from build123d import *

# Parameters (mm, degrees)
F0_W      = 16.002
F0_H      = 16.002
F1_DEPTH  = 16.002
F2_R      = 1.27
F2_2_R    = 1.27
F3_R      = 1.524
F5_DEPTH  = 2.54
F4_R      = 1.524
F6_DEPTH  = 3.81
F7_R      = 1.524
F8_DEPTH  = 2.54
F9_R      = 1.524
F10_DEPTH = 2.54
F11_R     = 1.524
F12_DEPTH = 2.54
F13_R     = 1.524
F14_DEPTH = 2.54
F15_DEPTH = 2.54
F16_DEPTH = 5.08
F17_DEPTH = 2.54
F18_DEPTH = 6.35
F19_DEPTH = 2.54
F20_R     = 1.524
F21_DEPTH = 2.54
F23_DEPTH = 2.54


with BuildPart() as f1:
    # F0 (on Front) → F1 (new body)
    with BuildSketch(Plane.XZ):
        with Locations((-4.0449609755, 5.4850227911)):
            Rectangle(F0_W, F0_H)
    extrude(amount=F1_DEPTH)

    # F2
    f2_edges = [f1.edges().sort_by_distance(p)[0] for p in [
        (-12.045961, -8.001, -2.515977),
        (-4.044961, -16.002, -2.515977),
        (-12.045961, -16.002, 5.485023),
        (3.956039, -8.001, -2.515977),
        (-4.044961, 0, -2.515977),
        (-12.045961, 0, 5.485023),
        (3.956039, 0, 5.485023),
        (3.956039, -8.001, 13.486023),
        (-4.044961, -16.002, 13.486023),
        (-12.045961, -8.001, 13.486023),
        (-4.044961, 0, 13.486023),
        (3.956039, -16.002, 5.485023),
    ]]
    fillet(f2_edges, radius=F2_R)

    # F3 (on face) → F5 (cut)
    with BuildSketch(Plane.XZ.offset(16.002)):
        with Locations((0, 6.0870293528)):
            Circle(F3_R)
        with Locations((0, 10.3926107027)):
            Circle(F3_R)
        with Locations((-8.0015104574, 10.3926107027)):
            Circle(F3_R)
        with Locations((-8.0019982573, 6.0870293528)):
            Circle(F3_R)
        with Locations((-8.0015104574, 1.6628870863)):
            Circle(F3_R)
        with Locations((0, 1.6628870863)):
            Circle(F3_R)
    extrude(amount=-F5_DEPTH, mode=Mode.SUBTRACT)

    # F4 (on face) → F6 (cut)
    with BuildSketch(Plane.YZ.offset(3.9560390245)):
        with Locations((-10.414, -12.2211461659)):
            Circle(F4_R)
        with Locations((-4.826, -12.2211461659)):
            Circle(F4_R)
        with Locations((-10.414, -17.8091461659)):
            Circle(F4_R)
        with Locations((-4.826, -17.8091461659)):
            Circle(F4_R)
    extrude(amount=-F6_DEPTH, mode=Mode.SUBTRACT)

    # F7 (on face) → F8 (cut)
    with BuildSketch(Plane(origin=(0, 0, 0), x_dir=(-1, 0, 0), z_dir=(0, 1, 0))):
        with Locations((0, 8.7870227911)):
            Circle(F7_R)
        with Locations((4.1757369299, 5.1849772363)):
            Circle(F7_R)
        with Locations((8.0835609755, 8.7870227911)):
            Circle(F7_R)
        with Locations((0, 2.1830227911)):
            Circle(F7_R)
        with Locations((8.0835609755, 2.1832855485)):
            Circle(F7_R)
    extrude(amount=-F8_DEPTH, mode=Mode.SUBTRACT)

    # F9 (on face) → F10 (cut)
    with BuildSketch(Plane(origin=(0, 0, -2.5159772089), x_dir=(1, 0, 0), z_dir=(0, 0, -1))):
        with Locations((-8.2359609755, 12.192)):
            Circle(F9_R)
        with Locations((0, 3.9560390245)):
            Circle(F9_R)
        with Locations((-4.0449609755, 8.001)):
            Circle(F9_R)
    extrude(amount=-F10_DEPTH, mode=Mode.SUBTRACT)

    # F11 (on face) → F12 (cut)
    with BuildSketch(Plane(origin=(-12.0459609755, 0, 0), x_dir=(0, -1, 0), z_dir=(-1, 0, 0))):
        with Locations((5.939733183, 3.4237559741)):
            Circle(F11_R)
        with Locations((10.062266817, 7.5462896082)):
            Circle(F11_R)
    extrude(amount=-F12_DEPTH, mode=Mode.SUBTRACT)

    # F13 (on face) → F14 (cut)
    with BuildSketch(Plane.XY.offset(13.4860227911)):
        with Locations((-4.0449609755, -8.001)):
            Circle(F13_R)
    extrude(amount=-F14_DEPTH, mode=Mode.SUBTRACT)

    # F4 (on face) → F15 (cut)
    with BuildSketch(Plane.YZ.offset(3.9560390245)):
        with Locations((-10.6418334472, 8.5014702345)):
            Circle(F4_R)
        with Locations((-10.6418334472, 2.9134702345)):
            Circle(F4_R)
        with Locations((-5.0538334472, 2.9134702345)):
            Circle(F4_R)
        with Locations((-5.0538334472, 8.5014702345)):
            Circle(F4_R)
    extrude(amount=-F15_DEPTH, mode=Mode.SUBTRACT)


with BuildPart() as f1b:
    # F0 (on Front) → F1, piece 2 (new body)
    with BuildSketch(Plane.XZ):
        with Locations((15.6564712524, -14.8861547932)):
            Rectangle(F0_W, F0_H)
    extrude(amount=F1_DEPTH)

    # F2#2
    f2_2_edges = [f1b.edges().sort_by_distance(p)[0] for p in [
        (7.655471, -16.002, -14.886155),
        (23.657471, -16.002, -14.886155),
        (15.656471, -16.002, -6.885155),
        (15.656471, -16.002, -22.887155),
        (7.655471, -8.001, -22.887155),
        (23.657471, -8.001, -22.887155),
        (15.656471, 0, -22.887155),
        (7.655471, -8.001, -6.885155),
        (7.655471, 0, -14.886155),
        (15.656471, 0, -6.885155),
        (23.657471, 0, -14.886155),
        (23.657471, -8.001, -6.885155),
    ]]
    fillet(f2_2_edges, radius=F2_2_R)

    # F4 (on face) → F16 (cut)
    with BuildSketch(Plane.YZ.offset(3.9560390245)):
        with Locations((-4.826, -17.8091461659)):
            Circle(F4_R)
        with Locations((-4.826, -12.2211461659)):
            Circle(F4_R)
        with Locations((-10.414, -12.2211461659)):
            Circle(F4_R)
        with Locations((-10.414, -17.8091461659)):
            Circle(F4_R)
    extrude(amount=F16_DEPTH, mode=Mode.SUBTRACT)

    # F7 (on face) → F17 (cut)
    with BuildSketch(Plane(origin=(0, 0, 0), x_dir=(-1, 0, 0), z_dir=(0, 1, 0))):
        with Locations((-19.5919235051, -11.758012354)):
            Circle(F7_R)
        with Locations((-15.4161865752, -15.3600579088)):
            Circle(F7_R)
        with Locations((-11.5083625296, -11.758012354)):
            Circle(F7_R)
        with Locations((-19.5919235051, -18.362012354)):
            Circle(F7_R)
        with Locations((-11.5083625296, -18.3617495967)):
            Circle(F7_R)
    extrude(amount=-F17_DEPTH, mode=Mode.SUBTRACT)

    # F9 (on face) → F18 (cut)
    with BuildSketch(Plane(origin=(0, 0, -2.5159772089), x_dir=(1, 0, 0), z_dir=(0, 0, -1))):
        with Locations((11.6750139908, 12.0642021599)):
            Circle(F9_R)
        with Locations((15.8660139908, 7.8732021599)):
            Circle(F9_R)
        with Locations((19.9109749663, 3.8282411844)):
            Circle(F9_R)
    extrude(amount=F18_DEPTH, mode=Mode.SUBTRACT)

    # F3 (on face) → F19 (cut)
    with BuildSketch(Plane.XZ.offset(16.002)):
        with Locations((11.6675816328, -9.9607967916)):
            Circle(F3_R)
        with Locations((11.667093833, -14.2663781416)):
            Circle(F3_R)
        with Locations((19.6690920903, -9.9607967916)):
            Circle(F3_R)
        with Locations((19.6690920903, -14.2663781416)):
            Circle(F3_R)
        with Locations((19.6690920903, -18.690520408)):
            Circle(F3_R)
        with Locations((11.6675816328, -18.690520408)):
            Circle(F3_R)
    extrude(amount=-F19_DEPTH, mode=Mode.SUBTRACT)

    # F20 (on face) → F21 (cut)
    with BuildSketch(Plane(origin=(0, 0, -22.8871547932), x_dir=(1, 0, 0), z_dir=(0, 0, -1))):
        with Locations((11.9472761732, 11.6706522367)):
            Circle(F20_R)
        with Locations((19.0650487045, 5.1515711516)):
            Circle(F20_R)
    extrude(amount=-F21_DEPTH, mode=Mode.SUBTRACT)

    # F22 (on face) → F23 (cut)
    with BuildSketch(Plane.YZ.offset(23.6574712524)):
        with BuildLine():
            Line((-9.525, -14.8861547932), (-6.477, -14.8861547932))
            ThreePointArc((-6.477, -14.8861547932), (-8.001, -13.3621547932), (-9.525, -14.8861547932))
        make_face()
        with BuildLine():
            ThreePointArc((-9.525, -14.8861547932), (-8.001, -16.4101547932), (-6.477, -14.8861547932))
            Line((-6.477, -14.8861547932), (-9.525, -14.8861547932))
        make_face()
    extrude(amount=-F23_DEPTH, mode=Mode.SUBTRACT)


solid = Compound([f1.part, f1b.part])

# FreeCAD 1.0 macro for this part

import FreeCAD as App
import Part
import Sketcher
from FreeCAD import Vector
Q = App.Units.Quantity

doc = App.newDocument("Part")
params = doc.addObject("Spreadsheet::Sheet", "Params")
for row, (alias, value) in enumerate([
    ("sketch1_width", "0.63 in"),
    ("pad1_length", "0.63 in"),
    ("fillet_radius", "0.05 in"),
    ("sketch2_diameter", "0.12 in"),
    ("pocket1_length", "0.1 in"),
    ("sketch3_diameter", "0.12 in"),
    ("pocket2_length", "0.15 in"),
    ("sketch4_diameter", "0.12 in"),
    ("pocket3_length", "0.1 in"),
    ("sketch5_diameter", "0.12 in"),
    ("pocket4_length", "0.1 in"),
    ("sketch6_diameter", "0.12 in"),
    ("pocket5_length", "0.1 in"),
    ("sketch7_diameter", "0.12 in"),
    ("pocket6_length", "0.1 in"),
    ("sketch8_diameter", "0.12 in"),
    ("pocket7_length", "0.1 in"),
    ("sketch9_width", "0.63 in"),
    ("pad2_length", "0.63 in"),
    ("fillet2_radius", "0.05 in"),
    ("sketch10_diameter", "0.12 in"),
    ("pocket8_length", "0.2 in"),
    ("sketch11_diameter", "0.12 in"),
    ("pocket9_length", "0.1 in"),
    ("sketch12_diameter", "0.12 in"),
    ("pocket10_length", "0.25 in"),
    ("sketch13_diameter", "0.12 in"),
    ("pocket11_length", "0.1 in"),
    ("sketch14_diameter", "0.12 in"),
    ("pocket12_length", "0.1 in"),
    ("sketch15_diameter", "0.12 in"),
    ("pocket13_length", "0.1 in"),
], start=1):
    params.set(f"A{row}", alias)
    params.set(f"B{row}", "=" + value)
    params.setAlias(f"B{row}", alias)

body = doc.addObject("PartDesign::Body", "Body")

# Sketch on XZ plane
sketch1 = doc.addObject("Sketcher::SketchObject", "Sketch")
body.addObject(sketch1)
sketch1.AttachmentSupport = (doc.XZ_Plane, [""])
sketch1.MapMode = "FlatFace"
sketch1.addGeometry(Part.LineSegment(Vector(-12, 13, 0), Vector(-12, -3, 0)), False)
sketch1.addGeometry(Part.LineSegment(Vector(-12, -3, 0), Vector(4, -3, 0)), False)
sketch1.addGeometry(Part.LineSegment(Vector(4, -3, 0), Vector(4, 13, 0)), False)
sketch1.addGeometry(Part.LineSegment(Vector(4, 13, 0), Vector(-12, 13, 0)), False)
sketch1.addConstraint(Sketcher.Constraint("Coincident", 0, 2, 1, 1))
sketch1.addConstraint(Sketcher.Constraint("Coincident", 1, 2, 2, 1))
sketch1.addConstraint(Sketcher.Constraint("Coincident", 2, 2, 3, 1))
sketch1.addConstraint(Sketcher.Constraint("Coincident", 3, 2, 0, 1))
sketch1.addConstraint(Sketcher.Constraint("Vertical", 0))
sketch1.addConstraint(Sketcher.Constraint("Horizontal", 1))
sketch1.addConstraint(Sketcher.Constraint("Vertical", 2))
sketch1.addConstraint(Sketcher.Constraint("Horizontal", 3))
sketch1.addConstraint(Sketcher.Constraint("Equal", 3, 0))
sketch1.addConstraint(Sketcher.Constraint("DistanceX", 1, 1, 1, 2, Q("0.63 in")))
sketch1.addConstraint(Sketcher.Constraint("DistanceX", 0, 2, -1, 1, 12.045961))
sketch1.addConstraint(Sketcher.Constraint("DistanceY", 0, 2, -1, 1, 2.515977))
sketch1.setExpression("Constraints[9]", "Params.sketch1_width")
pad1 = doc.addObject("PartDesign::Pad", "Pad")
body.addObject(pad1)
pad1.Profile = sketch1
pad1.setExpression("Length", "Params.pad1_length")
doc.recompute()

fillet = doc.addObject("PartDesign::Fillet", "Fillet")
body.addObject(fillet)
fillet.Base = (pad1, ["Edge1"])
fillet.UseAllEdges = True
fillet.setExpression("Radius", "Params.fillet_radius")

# Sketch on XZ plane
sketch2 = doc.addObject("Sketcher::SketchObject", "Sketch001")
body.addObject(sketch2)
sketch2.AttachmentSupport = (doc.XZ_Plane, [""])
sketch2.MapMode = "FlatFace"
sketch2.AttachmentOffset = App.Placement(Vector(0, 0, 0.63 * 25.4), App.Rotation())
sketch2.addGeometry(Part.Circle(Vector(0, 6.1, 0), Vector(0, 0, 1), 1.5), False)
sketch2.addGeometry(Part.Circle(Vector(0, 10.4, 0), Vector(0, 0, 1), 1.5), False)
sketch2.addGeometry(Part.Circle(Vector(-8, 10.4, 0), Vector(0, 0, 1), 1.5), False)
sketch2.addGeometry(Part.Circle(Vector(-8, 6.1, 0), Vector(0, 0, 1), 1.5), False)
sketch2.addGeometry(Part.Circle(Vector(-8, 1.7, 0), Vector(0, 0, 1), 1.5), False)
sketch2.addGeometry(Part.Circle(Vector(0, 1.7, 0), Vector(0, 0, 1), 1.5), False)
sketch2.addConstraint(Sketcher.Constraint("Equal", 0, 1))
sketch2.addConstraint(Sketcher.Constraint("Equal", 1, 2))
sketch2.addConstraint(Sketcher.Constraint("Equal", 2, 3))
sketch2.addConstraint(Sketcher.Constraint("Equal", 3, 4))
sketch2.addConstraint(Sketcher.Constraint("Equal", 4, 5))
sketch2.addConstraint(Sketcher.Constraint("PointOnObject", 0, 3, -2))
sketch2.addConstraint(Sketcher.Constraint("PointOnObject", 1, 3, -2))
sketch2.addConstraint(Sketcher.Constraint("PointOnObject", 5, 3, -2))
sketch2.addConstraint(Sketcher.Constraint("Horizontal", 1, 3, 2, 3))
sketch2.addConstraint(Sketcher.Constraint("Horizontal", 0, 3, 3, 3))
sketch2.addConstraint(Sketcher.Constraint("Horizontal", 4, 3, 5, 3))
sketch2.addConstraint(Sketcher.Constraint("Vertical", 2, 3, 4, 3))
sketch2.addConstraint(Sketcher.Constraint("Diameter", 0, Q("0.12 in")))
sketch2.addConstraint(Sketcher.Constraint("DistanceX", 3, 3, -1, 1, 8.001998))
sketch2.addConstraint(Sketcher.Constraint("DistanceY", -1, 1, 0, 3, 6.087029))
sketch2.addConstraint(Sketcher.Constraint("DistanceY", -1, 1, 1, 3, 10.392611))
sketch2.addConstraint(Sketcher.Constraint("DistanceX", 2, 3, -1, 1, 8.00151))
sketch2.addConstraint(Sketcher.Constraint("DistanceY", -1, 1, 4, 3, 1.662887))
sketch2.setExpression("Constraints[12]", "Params.sketch2_diameter")
pocket1 = doc.addObject("PartDesign::Pocket", "Pocket")
body.addObject(pocket1)
pocket1.Profile = sketch2
pocket1.setExpression("Length", "Params.pocket1_length")

# Sketch on YZ plane
sketch3 = doc.addObject("Sketcher::SketchObject", "Sketch002")
body.addObject(sketch3)
sketch3.AttachmentSupport = (doc.YZ_Plane, [""])
sketch3.MapMode = "FlatFace"
sketch3.AttachmentOffset = App.Placement(Vector(0, 0, 3.956039), App.Rotation())
sketch3.addGeometry(Part.Circle(Vector(-10.4, -12.2, 0), Vector(0, 0, 1), 1.5), False)
sketch3.addGeometry(Part.Circle(Vector(-4.8, -12.2, 0), Vector(0, 0, 1), 1.5), False)
sketch3.addGeometry(Part.Circle(Vector(-10.4, -17.8, 0), Vector(0, 0, 1), 1.5), False)
sketch3.addGeometry(Part.Circle(Vector(-4.8, -17.8, 0), Vector(0, 0, 1), 1.5), False)
sketch3.addConstraint(Sketcher.Constraint("Equal", 0, 1))
sketch3.addConstraint(Sketcher.Constraint("Equal", 1, 2))
sketch3.addConstraint(Sketcher.Constraint("Equal", 2, 3))
sketch3.addConstraint(Sketcher.Constraint("Horizontal", 0, 3, 1, 3))
sketch3.addConstraint(Sketcher.Constraint("Horizontal", 2, 3, 3, 3))
sketch3.addConstraint(Sketcher.Constraint("Vertical", 0, 3, 2, 3))
sketch3.addConstraint(Sketcher.Constraint("Vertical", 1, 3, 3, 3))
sketch3.addConstraint(Sketcher.Constraint("Diameter", 0, Q("0.12 in")))
sketch3.addConstraint(Sketcher.Constraint("DistanceX", 0, 3, -1, 1, Q("0.41 in")))
sketch3.addConstraint(Sketcher.Constraint("DistanceX", 1, 3, -1, 1, Q("0.19 in")))
sketch3.addConstraint(Sketcher.Constraint("DistanceY", 2, 3, 0, 3, Q("0.22 in")))
sketch3.addConstraint(Sketcher.Constraint("DistanceY", 0, 3, -1, 1, 12.221146))
sketch3.setExpression("Constraints[7]", "Params.sketch3_diameter")
pocket2 = doc.addObject("PartDesign::Pocket", "Pocket001")
body.addObject(pocket2)
pocket2.Profile = sketch3
pocket2.setExpression("Length", "Params.pocket2_length")

# Sketch on XZ plane
sketch4 = doc.addObject("Sketcher::SketchObject", "Sketch003")
body.addObject(sketch4)
sketch4.AttachmentSupport = (doc.XZ_Plane, [""])
sketch4.MapMode = "FlatFace"
sketch4.addGeometry(Part.Circle(Vector(0, 8.8, 0), Vector(0, 0, 1), 1.5), False)
sketch4.addGeometry(Part.Circle(Vector(-4.2, 5.2, 0), Vector(0, 0, 1), 1.5), False)
sketch4.addGeometry(Part.Circle(Vector(-8.1, 8.8, 0), Vector(0, 0, 1), 1.5), False)
sketch4.addGeometry(Part.Circle(Vector(0, 2.2, 0), Vector(0, 0, 1), 1.5), False)
sketch4.addGeometry(Part.Circle(Vector(-8.1, 2.2, 0), Vector(0, 0, 1), 1.5), False)
sketch4.addConstraint(Sketcher.Constraint("Equal", 0, 1))
sketch4.addConstraint(Sketcher.Constraint("Equal", 1, 2))
sketch4.addConstraint(Sketcher.Constraint("Equal", 2, 3))
sketch4.addConstraint(Sketcher.Constraint("Equal", 3, 4))
sketch4.addConstraint(Sketcher.Constraint("PointOnObject", 0, 3, -2))
sketch4.addConstraint(Sketcher.Constraint("PointOnObject", 3, 3, -2))
sketch4.addConstraint(Sketcher.Constraint("Horizontal", 0, 3, 2, 3))
sketch4.addConstraint(Sketcher.Constraint("Vertical", 2, 3, 4, 3))
sketch4.addConstraint(Sketcher.Constraint("Diameter", 0, Q("0.12 in")))
sketch4.addConstraint(Sketcher.Constraint("DistanceY", 3, 3, 0, 3, Q("0.26 in")))
sketch4.addConstraint(Sketcher.Constraint("DistanceX", 2, 3, -1, 1, 8.083561))
sketch4.addConstraint(Sketcher.Constraint("DistanceY", 4, 3, 1, 3, 3.001692))
sketch4.addConstraint(Sketcher.Constraint("DistanceY", -1, 1, 0, 3, 8.787023))
sketch4.addConstraint(Sketcher.Constraint("DistanceX", 1, 3, -1, 1, 4.175737))
sketch4.addConstraint(Sketcher.Constraint("DistanceY", -1, 1, 1, 3, 5.184977))
sketch4.setExpression("Constraints[8]", "Params.sketch4_diameter")
pocket3 = doc.addObject("PartDesign::Pocket", "Pocket002")
body.addObject(pocket3)
pocket3.Profile = sketch4
pocket3.setExpression("Length", "Params.pocket3_length")
pocket3.Reversed = True

# Sketch on XY plane
sketch5 = doc.addObject("Sketcher::SketchObject", "Sketch004")
body.addObject(sketch5)
sketch5.AttachmentSupport = (doc.XY_Plane, [""])
sketch5.MapMode = "FlatFace"
sketch5.AttachmentOffset = App.Placement(Vector(0, 0, -2.515977), App.Rotation())
sketch5.addGeometry(Part.Circle(Vector(-8.2, -12.2, 0), Vector(0, 0, 1), 1.5), False)
sketch5.addGeometry(Part.Circle(Vector(0, -4, 0), Vector(0, 0, 1), 1.5), False)
sketch5.addGeometry(Part.Circle(Vector(-4, -8, 0), Vector(0, 0, 1), 1.5), False)
sketch5.addConstraint(Sketcher.Constraint("Equal", 0, 1))
sketch5.addConstraint(Sketcher.Constraint("Equal", 1, 2))
sketch5.addConstraint(Sketcher.Constraint("PointOnObject", 1, 3, -2))
sketch5.addConstraint(Sketcher.Constraint("Diameter", 0, Q("0.12 in")))
sketch5.addConstraint(Sketcher.Constraint("DistanceY", 0, 3, -1, 1, Q("0.48 in")))
sketch5.addConstraint(Sketcher.Constraint("DistanceY", 2, 3, -1, 1, Q("0.315 in")))
sketch5.addConstraint(Sketcher.Constraint("DistanceX", 0, 3, 2, 3, Q("0.165 in")))
sketch5.addConstraint(Sketcher.Constraint("DistanceX", 0, 3, -1, 1, 8.235961))
sketch5.addConstraint(Sketcher.Constraint("DistanceY", 1, 3, -1, 1, 3.956039))
sketch5.setExpression("Constraints[3]", "Params.sketch5_diameter")
pocket4 = doc.addObject("PartDesign::Pocket", "Pocket003")
body.addObject(pocket4)
pocket4.Profile = sketch5
pocket4.setExpression("Length", "Params.pocket4_length")
pocket4.Reversed = True

# Sketch on YZ plane
sketch6 = doc.addObject("Sketcher::SketchObject", "Sketch005")
body.addObject(sketch6)
sketch6.AttachmentSupport = (doc.YZ_Plane, [""])
sketch6.MapMode = "FlatFace"
sketch6.AttachmentOffset = App.Placement(Vector(0, 0, -12.045961), App.Rotation())
sketch6.addGeometry(Part.Circle(Vector(-5.9, 3.4, 0), Vector(0, 0, 1), 1.5), False)
sketch6.addGeometry(Part.Circle(Vector(-10.1, 7.5, 0), Vector(0, 0, 1), 1.5), False)
sketch6.addConstraint(Sketcher.Constraint("Equal", 0, 1))
sketch6.addConstraint(Sketcher.Constraint("Diameter", 0, Q("0.12 in")))
sketch6.addConstraint(Sketcher.Constraint("DistanceY", -1, 1, 1, 3, 7.54629))
sketch6.addConstraint(Sketcher.Constraint("DistanceX", 0, 3, -1, 1, 5.939733))
sketch6.addConstraint(Sketcher.Constraint("DistanceY", -1, 1, 0, 3, 3.423756))
sketch6.addConstraint(Sketcher.Constraint("DistanceX", 1, 3, -1, 1, 10.062267))
sketch6.setExpression("Constraints[1]", "Params.sketch6_diameter")
pocket5 = doc.addObject("PartDesign::Pocket", "Pocket004")
body.addObject(pocket5)
pocket5.Profile = sketch6
pocket5.setExpression("Length", "Params.pocket5_length")
pocket5.Reversed = True

# Sketch on XY plane
sketch7 = doc.addObject("Sketcher::SketchObject", "Sketch006")
body.addObject(sketch7)
sketch7.AttachmentSupport = (doc.XY_Plane, [""])
sketch7.MapMode = "FlatFace"
sketch7.AttachmentOffset = App.Placement(Vector(0, 0, 13.486023), App.Rotation())
sketch7.addGeometry(Part.Circle(Vector(-4, -8, 0), Vector(0, 0, 1), 1.5), False)
sketch7.addConstraint(Sketcher.Constraint("Diameter", 0, Q("0.12 in")))
sketch7.addConstraint(Sketcher.Constraint("DistanceY", 0, 3, -1, 1, Q("0.315 in")))
sketch7.addConstraint(Sketcher.Constraint("DistanceX", 0, 3, -1, 1, 4.044961))
sketch7.setExpression("Constraints[0]", "Params.sketch7_diameter")
pocket6 = doc.addObject("PartDesign::Pocket", "Pocket005")
body.addObject(pocket6)
pocket6.Profile = sketch7
pocket6.setExpression("Length", "Params.pocket6_length")

# Sketch on YZ plane
sketch8 = doc.addObject("Sketcher::SketchObject", "Sketch007")
body.addObject(sketch8)
sketch8.AttachmentSupport = (doc.YZ_Plane, [""])
sketch8.MapMode = "FlatFace"
sketch8.AttachmentOffset = App.Placement(Vector(0, 0, 3.956039), App.Rotation())
sketch8.addGeometry(Part.Circle(Vector(-10.6, 8.5, 0), Vector(0, 0, 1), 1.5), False)
sketch8.addGeometry(Part.Circle(Vector(-10.6, 2.9, 0), Vector(0, 0, 1), 1.5), False)
sketch8.addGeometry(Part.Circle(Vector(-5.1, 2.9, 0), Vector(0, 0, 1), 1.5), False)
sketch8.addGeometry(Part.Circle(Vector(-5.1, 8.5, 0), Vector(0, 0, 1), 1.5), False)
sketch8.addConstraint(Sketcher.Constraint("Equal", 0, 1))
sketch8.addConstraint(Sketcher.Constraint("Equal", 1, 2))
sketch8.addConstraint(Sketcher.Constraint("Equal", 2, 3))
sketch8.addConstraint(Sketcher.Constraint("Horizontal", 1, 3, 2, 3))
sketch8.addConstraint(Sketcher.Constraint("Horizontal", 0, 3, 3, 3))
sketch8.addConstraint(Sketcher.Constraint("Vertical", 0, 3, 1, 3))
sketch8.addConstraint(Sketcher.Constraint("Vertical", 2, 3, 3, 3))
sketch8.addConstraint(Sketcher.Constraint("Diameter", 0, Q("0.12 in")))
sketch8.addConstraint(Sketcher.Constraint("DistanceY", 1, 3, 0, 3, Q("0.22 in")))
sketch8.addConstraint(Sketcher.Constraint("DistanceX", 1, 3, 2, 3, Q("0.22 in")))
sketch8.addConstraint(Sketcher.Constraint("DistanceY", -1, 1, 0, 3, 8.50147))
sketch8.addConstraint(Sketcher.Constraint("DistanceX", 0, 3, -1, 1, 10.641833))
sketch8.setExpression("Constraints[7]", "Params.sketch8_diameter")
pocket7 = doc.addObject("PartDesign::Pocket", "Pocket006")
body.addObject(pocket7)
pocket7.Profile = sketch8
pocket7.setExpression("Length", "Params.pocket7_length")
body2 = doc.addObject("PartDesign::Body", "Body001")

# Sketch on XZ plane
sketch9 = doc.addObject("Sketcher::SketchObject", "Sketch008")
body2.addObject(sketch9)
sketch9.AttachmentSupport = (doc.getObject("XZ_Plane001"), [""])
sketch9.MapMode = "FlatFace"
sketch9.addGeometry(Part.LineSegment(Vector(8, -7, 0), Vector(8, -23, 0)), False)
sketch9.addGeometry(Part.LineSegment(Vector(8, -23, 0), Vector(24, -23, 0)), False)
sketch9.addGeometry(Part.LineSegment(Vector(24, -23, 0), Vector(24, -7, 0)), False)
sketch9.addGeometry(Part.LineSegment(Vector(24, -7, 0), Vector(8, -7, 0)), False)
sketch9.addConstraint(Sketcher.Constraint("Coincident", 0, 2, 1, 1))
sketch9.addConstraint(Sketcher.Constraint("Coincident", 1, 2, 2, 1))
sketch9.addConstraint(Sketcher.Constraint("Coincident", 2, 2, 3, 1))
sketch9.addConstraint(Sketcher.Constraint("Coincident", 3, 2, 0, 1))
sketch9.addConstraint(Sketcher.Constraint("Vertical", 0))
sketch9.addConstraint(Sketcher.Constraint("Horizontal", 1))
sketch9.addConstraint(Sketcher.Constraint("Vertical", 2))
sketch9.addConstraint(Sketcher.Constraint("Horizontal", 3))
sketch9.addConstraint(Sketcher.Constraint("Equal", 3, 0))
sketch9.addConstraint(Sketcher.Constraint("DistanceX", 1, 1, 1, 2, Q("0.63 in")))
sketch9.addConstraint(Sketcher.Constraint("DistanceX", -1, 1, 0, 2, 7.655471))
sketch9.addConstraint(Sketcher.Constraint("DistanceY", 0, 2, -1, 1, 22.887155))
sketch9.setExpression("Constraints[9]", "Params.sketch9_width")
pad2 = doc.addObject("PartDesign::Pad", "Pad001")
body2.addObject(pad2)
pad2.Profile = sketch9
pad2.setExpression("Length", "Params.pad2_length")
doc.recompute()

fillet2 = doc.addObject("PartDesign::Fillet", "Fillet001")
body2.addObject(fillet2)
fillet2.Base = (pad2, ["Edge1"])
fillet2.UseAllEdges = True
fillet2.setExpression("Radius", "Params.fillet2_radius")

# Sketch on YZ plane
sketch10 = doc.addObject("Sketcher::SketchObject", "Sketch009")
body2.addObject(sketch10)
sketch10.AttachmentSupport = (doc.getObject("YZ_Plane001"), [""])
sketch10.MapMode = "FlatFace"
sketch10.AttachmentOffset = App.Placement(Vector(0, 0, 3.956039), App.Rotation())
sketch10.addGeometry(Part.Circle(Vector(-4.8, -17.8, 0), Vector(0, 0, 1), 1.5), False)
sketch10.addGeometry(Part.Circle(Vector(-4.8, -12.2, 0), Vector(0, 0, 1), 1.5), False)
sketch10.addGeometry(Part.Circle(Vector(-10.4, -12.2, 0), Vector(0, 0, 1), 1.5), False)
sketch10.addGeometry(Part.Circle(Vector(-10.4, -17.8, 0), Vector(0, 0, 1), 1.5), False)
sketch10.addConstraint(Sketcher.Constraint("Equal", 0, 1))
sketch10.addConstraint(Sketcher.Constraint("Equal", 1, 2))
sketch10.addConstraint(Sketcher.Constraint("Equal", 2, 3))
sketch10.addConstraint(Sketcher.Constraint("Horizontal", 1, 3, 2, 3))
sketch10.addConstraint(Sketcher.Constraint("Horizontal", 0, 3, 3, 3))
sketch10.addConstraint(Sketcher.Constraint("Vertical", 0, 3, 1, 3))
sketch10.addConstraint(Sketcher.Constraint("Vertical", 2, 3, 3, 3))
sketch10.addConstraint(Sketcher.Constraint("Diameter", 0, Q("0.12 in")))
sketch10.addConstraint(Sketcher.Constraint("DistanceX", 0, 3, -1, 1, Q("0.19 in")))
sketch10.addConstraint(Sketcher.Constraint("DistanceX", 2, 3, -1, 1, Q("0.41 in")))
sketch10.addConstraint(Sketcher.Constraint("DistanceY", 0, 3, 1, 3, Q("0.22 in")))
sketch10.addConstraint(Sketcher.Constraint("DistanceY", 0, 3, -1, 1, 17.809146))
sketch10.setExpression("Constraints[7]", "Params.sketch10_diameter")
pocket8 = doc.addObject("PartDesign::Pocket", "Pocket007")
body2.addObject(pocket8)
pocket8.Profile = sketch10
pocket8.setExpression("Length", "Params.pocket8_length")
pocket8.Reversed = True

# Sketch on XZ plane
sketch11 = doc.addObject("Sketcher::SketchObject", "Sketch010")
body2.addObject(sketch11)
sketch11.AttachmentSupport = (doc.getObject("XZ_Plane001"), [""])
sketch11.MapMode = "FlatFace"
sketch11.addGeometry(Part.Circle(Vector(19.6, -11.8, 0), Vector(0, 0, 1), 1.5), False)
sketch11.addGeometry(Part.Circle(Vector(15.4, -15.4, 0), Vector(0, 0, 1), 1.5), False)
sketch11.addGeometry(Part.Circle(Vector(11.5, -11.8, 0), Vector(0, 0, 1), 1.5), False)
sketch11.addGeometry(Part.Circle(Vector(19.6, -18.4, 0), Vector(0, 0, 1), 1.5), False)
sketch11.addGeometry(Part.Circle(Vector(11.5, -18.4, 0), Vector(0, 0, 1), 1.5), False)
sketch11.addConstraint(Sketcher.Constraint("Equal", 0, 1))
sketch11.addConstraint(Sketcher.Constraint("Equal", 1, 2))
sketch11.addConstraint(Sketcher.Constraint("Equal", 2, 3))
sketch11.addConstraint(Sketcher.Constraint("Equal", 3, 4))
sketch11.addConstraint(Sketcher.Constraint("Horizontal", 0, 3, 2, 3))
sketch11.addConstraint(Sketcher.Constraint("Vertical", 0, 3, 3, 3))
sketch11.addConstraint(Sketcher.Constraint("Vertical", 2, 3, 4, 3))
sketch11.addConstraint(Sketcher.Constraint("Diameter", 0, Q("0.12 in")))
sketch11.addConstraint(Sketcher.Constraint("DistanceY", 3, 3, 0, 3, Q("0.26 in")))
sketch11.addConstraint(Sketcher.Constraint("DistanceY", 4, 3, -1, 1, 18.36175))
sketch11.addConstraint(Sketcher.Constraint("DistanceX", 2, 3, 0, 3, 8.083561))
sketch11.addConstraint(Sketcher.Constraint("DistanceY", 4, 3, 1, 3, 3.001692))
sketch11.addConstraint(Sketcher.Constraint("DistanceX", -1, 1, 0, 3, 19.591924))
sketch11.addConstraint(Sketcher.Constraint("DistanceY", 0, 3, -1, 1, 11.758012))
sketch11.addConstraint(Sketcher.Constraint("DistanceX", -1, 1, 1, 3, 15.416187))
sketch11.setExpression("Constraints[7]", "Params.sketch11_diameter")
pocket9 = doc.addObject("PartDesign::Pocket", "Pocket008")
body2.addObject(pocket9)
pocket9.Profile = sketch11
pocket9.setExpression("Length", "Params.pocket9_length")
pocket9.Reversed = True

# Sketch on XY plane
sketch12 = doc.addObject("Sketcher::SketchObject", "Sketch011")
body2.addObject(sketch12)
sketch12.AttachmentSupport = (doc.getObject("XY_Plane001"), [""])
sketch12.MapMode = "FlatFace"
sketch12.AttachmentOffset = App.Placement(Vector(0, 0, -2.515977), App.Rotation())
sketch12.addGeometry(Part.Circle(Vector(11.7, -12.1, 0), Vector(0, 0, 1), 1.5), False)
sketch12.addGeometry(Part.Circle(Vector(15.9, -7.9, 0), Vector(0, 0, 1), 1.5), False)
sketch12.addGeometry(Part.Circle(Vector(19.9, -3.8, 0), Vector(0, 0, 1), 1.5), False)
sketch12.addConstraint(Sketcher.Constraint("Equal", 0, 1))
sketch12.addConstraint(Sketcher.Constraint("Equal", 1, 2))
sketch12.addConstraint(Sketcher.Constraint("Diameter", 0, Q("0.12 in")))
sketch12.addConstraint(Sketcher.Constraint("DistanceX", 0, 3, 1, 3, Q("0.165 in")))
sketch12.addConstraint(Sketcher.Constraint("DistanceY", 0, 3, 1, 3, Q("0.165 in")))
sketch12.addConstraint(Sketcher.Constraint("DistanceY", 2, 3, -1, 1, 3.828241))
sketch12.addConstraint(Sketcher.Constraint("DistanceX", 1, 3, 2, 3, 4.044961))
sketch12.addConstraint(Sketcher.Constraint("DistanceY", 1, 3, 2, 3, 4.044961))
sketch12.addConstraint(Sketcher.Constraint("DistanceX", -1, 1, 0, 3, 11.675014))
sketch12.setExpression("Constraints[2]", "Params.sketch12_diameter")
pocket10 = doc.addObject("PartDesign::Pocket", "Pocket009")
body2.addObject(pocket10)
pocket10.Profile = sketch12
pocket10.setExpression("Length", "Params.pocket10_length")

# Sketch on XZ plane
sketch13 = doc.addObject("Sketcher::SketchObject", "Sketch012")
body2.addObject(sketch13)
sketch13.AttachmentSupport = (doc.getObject("XZ_Plane001"), [""])
sketch13.MapMode = "FlatFace"
sketch13.AttachmentOffset = App.Placement(Vector(0, 0, 0.63 * 25.4), App.Rotation())
sketch13.addGeometry(Part.Circle(Vector(11.7, -10, 0), Vector(0, 0, 1), 1.5), False)
sketch13.addGeometry(Part.Circle(Vector(11.7, -14.3, 0), Vector(0, 0, 1), 1.5), False)
sketch13.addGeometry(Part.Circle(Vector(19.7, -10, 0), Vector(0, 0, 1), 1.5), False)
sketch13.addGeometry(Part.Circle(Vector(19.7, -14.3, 0), Vector(0, 0, 1), 1.5), False)
sketch13.addGeometry(Part.Circle(Vector(19.7, -18.7, 0), Vector(0, 0, 1), 1.5), False)
sketch13.addGeometry(Part.Circle(Vector(11.7, -18.7, 0), Vector(0, 0, 1), 1.5), False)
sketch13.addConstraint(Sketcher.Constraint("Equal", 0, 1))
sketch13.addConstraint(Sketcher.Constraint("Equal", 1, 2))
sketch13.addConstraint(Sketcher.Constraint("Equal", 2, 3))
sketch13.addConstraint(Sketcher.Constraint("Equal", 3, 4))
sketch13.addConstraint(Sketcher.Constraint("Equal", 4, 5))
sketch13.addConstraint(Sketcher.Constraint("Horizontal", 0, 3, 2, 3))
sketch13.addConstraint(Sketcher.Constraint("Horizontal", 1, 3, 3, 3))
sketch13.addConstraint(Sketcher.Constraint("Horizontal", 4, 3, 5, 3))
sketch13.addConstraint(Sketcher.Constraint("Vertical", 2, 3, 3, 3))
sketch13.addConstraint(Sketcher.Constraint("Vertical", 3, 3, 4, 3))
sketch13.addConstraint(Sketcher.Constraint("Vertical", 0, 3, 5, 3))
sketch13.addConstraint(Sketcher.Constraint("Diameter", 0, Q("0.12 in")))
sketch13.addConstraint(Sketcher.Constraint("DistanceX", 1, 3, 2, 3, 8.001998))
sketch13.addConstraint(Sketcher.Constraint("DistanceX", -1, 1, 0, 3, 11.667582))
sketch13.addConstraint(Sketcher.Constraint("DistanceY", 1, 3, -1, 1, 14.266378))
sketch13.addConstraint(Sketcher.Constraint("DistanceY", 4, 3, -1, 1, 18.69052))
sketch13.addConstraint(Sketcher.Constraint("DistanceY", 1, 3, 0, 3, 4.305581))
sketch13.addConstraint(Sketcher.Constraint("DistanceX", 0, 3, 2, 3, 8.00151))
sketch13.setExpression("Constraints[11]", "Params.sketch13_diameter")
pocket11 = doc.addObject("PartDesign::Pocket", "Pocket010")
body2.addObject(pocket11)
pocket11.Profile = sketch13
pocket11.setExpression("Length", "Params.pocket11_length")

# Sketch on XY plane
sketch14 = doc.addObject("Sketcher::SketchObject", "Sketch013")
body2.addObject(sketch14)
sketch14.AttachmentSupport = (doc.getObject("XY_Plane001"), [""])
sketch14.MapMode = "FlatFace"
sketch14.AttachmentOffset = App.Placement(Vector(0, 0, -22.887155), App.Rotation())
sketch14.addGeometry(Part.Circle(Vector(11.9, -11.7, 0), Vector(0, 0, 1), 1.5), False)
sketch14.addGeometry(Part.Circle(Vector(19.1, -5.2, 0), Vector(0, 0, 1), 1.5), False)
sketch14.addConstraint(Sketcher.Constraint("Equal", 0, 1))
sketch14.addConstraint(Sketcher.Constraint("Diameter", 0, Q("0.12 in")))
sketch14.addConstraint(Sketcher.Constraint("DistanceX", -1, 1, 1, 3, 19.065049))
sketch14.addConstraint(Sketcher.Constraint("DistanceY", 1, 3, -1, 1, 5.151571))
sketch14.addConstraint(Sketcher.Constraint("DistanceY", 0, 3, 1, 3, 6.519081))
sketch14.addConstraint(Sketcher.Constraint("DistanceX", -1, 1, 0, 3, 11.947276))
sketch14.setExpression("Constraints[1]", "Params.sketch14_diameter")
pocket12 = doc.addObject("PartDesign::Pocket", "Pocket011")
body2.addObject(pocket12)
pocket12.Profile = sketch14
pocket12.setExpression("Length", "Params.pocket12_length")
pocket12.Reversed = True

# Sketch on YZ plane
sketch15 = doc.addObject("Sketcher::SketchObject", "Sketch014")
body2.addObject(sketch15)
sketch15.AttachmentSupport = (doc.getObject("YZ_Plane001"), [""])
sketch15.MapMode = "FlatFace"
sketch15.AttachmentOffset = App.Placement(Vector(0, 0, 23.657471), App.Rotation())
sketch15.addGeometry(Part.Circle(Vector(-8, -14.9, 0), Vector(0, 0, 1), 1.5), False)
sketch15.addConstraint(Sketcher.Constraint("Diameter", 0, Q("0.12 in")))
sketch15.addConstraint(Sketcher.Constraint("DistanceX", 0, 3, -1, 1, Q("0.315 in")))
sketch15.addConstraint(Sketcher.Constraint("DistanceY", 0, 3, -1, 1, 14.886155))
sketch15.setExpression("Constraints[0]", "Params.sketch15_diameter")
pocket13 = doc.addObject("PartDesign::Pocket", "Pocket012")
body2.addObject(pocket13)
pocket13.Profile = sketch15
pocket13.setExpression("Length", "Params.pocket13_length")

doc.recompute()
